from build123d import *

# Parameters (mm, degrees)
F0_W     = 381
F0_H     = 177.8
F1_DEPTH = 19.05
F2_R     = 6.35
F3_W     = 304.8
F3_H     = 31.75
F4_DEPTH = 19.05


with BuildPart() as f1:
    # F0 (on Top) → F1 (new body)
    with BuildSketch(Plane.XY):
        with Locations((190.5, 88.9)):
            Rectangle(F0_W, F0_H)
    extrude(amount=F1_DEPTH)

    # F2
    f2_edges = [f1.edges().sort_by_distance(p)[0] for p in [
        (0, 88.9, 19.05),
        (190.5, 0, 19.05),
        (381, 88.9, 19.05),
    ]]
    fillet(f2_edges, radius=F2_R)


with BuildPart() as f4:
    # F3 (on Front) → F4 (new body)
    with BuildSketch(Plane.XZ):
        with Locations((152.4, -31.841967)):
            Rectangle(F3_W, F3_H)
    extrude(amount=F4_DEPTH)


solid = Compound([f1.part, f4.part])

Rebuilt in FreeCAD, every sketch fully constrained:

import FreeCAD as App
import Part
import Sketcher

V = App.Vector
Q = App.Units.Quantity


def edges_at(feature, points):
    """Names of the edges that pass closest to the given points."""
    edges = feature.Shape.Edges
    near = lambda p: min(range(len(edges)), key=lambda i: edges[i].distToShape(Part.Vertex(*p))[0])
    return sorted({f"Edge{near(p) + 1}" for p in points})


def add_polygon(sketch, points):
    """Adds a closed chain of lines whose ends are joined by coincident constraints."""
    first, n = sketch.GeometryCount, len(points)
    for a, b in zip(points, points[1:] + points[:1]):
        sketch.addGeometry(Part.LineSegment(App.Vector(*a, 0), App.Vector(*b, 0)), False)
    for i in range(n):
        sketch.addConstraint(Sketcher.Constraint("Coincident", first + i, 2, first + (i + 1) % n, 1))

doc = App.newDocument("Part")
body = doc.addObject("PartDesign::Body", "Body")

# Sketch on XY plane
sketch1 = doc.addObject("Sketcher::SketchObject", "Sketch")
body.addObject(sketch1)
sketch1.AttachmentSupport = (doc.XY_Plane, [""])
sketch1.MapMode = "FlatFace"
add_polygon(sketch1, [(0, 178), (0, 0), (381, 0), (381, 178)])  # lines 0-3
sketch1.addConstraint(Sketcher.Constraint("Vertical", 0))
sketch1.addConstraint(Sketcher.Constraint("Horizontal", 1))
sketch1.addConstraint(Sketcher.Constraint("Vertical", 2))
sketch1.addConstraint(Sketcher.Constraint("Horizontal", 3))
sketch1.addConstraint(Sketcher.Constraint("Coincident", 0, 2, -1, 1))
sketch1.addConstraint(Sketcher.Constraint("DistanceX", 1, 1, 1, 2, Q("15 in")))
sketch1.addConstraint(Sketcher.Constraint("DistanceY", 0, 2, 0, 1, Q("7 in")))
pad1 = doc.addObject("PartDesign::Pad", "Pad")
body.addObject(pad1)
pad1.Profile = sketch1
pad1.Length = Q("0.75 in")
doc.recompute()

fillet = doc.addObject("PartDesign::Fillet", "Fillet")
body.addObject(fillet)
fillet.Base = (pad1, edges_at(pad1, [(0, 88.9, 19.05), (190.5, 0, 19.05), (381, 88.9, 19.05)]))
fillet.Radius = Q("0.25 in")
body2 = doc.addObject("PartDesign::Body", "Body001")

# Sketch on XZ plane
sketch2 = doc.addObject("Sketcher::SketchObject", "Sketch001")
body2.addObject(sketch2)
sketch2.AttachmentSupport = (doc.getObject("XZ_Plane001"), [""])
sketch2.MapMode = "FlatFace"
add_polygon(sketch2, [(0, -16), (0, -48), (305, -48), (305, -16)])  # lines 0-3
sketch2.addConstraint(Sketcher.Constraint("Vertical", 0))
sketch2.addConstraint(Sketcher.Constraint("Horizontal", 1))
sketch2.addConstraint(Sketcher.Constraint("Vertical", 2))
sketch2.addConstraint(Sketcher.Constraint("Horizontal", 3))
sketch2.addConstraint(Sketcher.Constraint("PointOnObject", 0, 2, -2))
sketch2.addConstraint(Sketcher.Constraint("DistanceX", 1, 1, 1, 2, Q("12 in")))
sketch2.addConstraint(Sketcher.Constraint("DistanceY", 0, 2, 0, 1, Q("1.25 in")))
sketch2.addConstraint(Sketcher.Constraint("DistanceY", 0, 2, -1, 1, 47.716967))
pad2 = doc.addObject("PartDesign::Pad", "Pad001")
body2.addObject(pad2)
pad2.Profile = sketch2
pad2.Length = Q("0.75 in")

doc.recompute()
